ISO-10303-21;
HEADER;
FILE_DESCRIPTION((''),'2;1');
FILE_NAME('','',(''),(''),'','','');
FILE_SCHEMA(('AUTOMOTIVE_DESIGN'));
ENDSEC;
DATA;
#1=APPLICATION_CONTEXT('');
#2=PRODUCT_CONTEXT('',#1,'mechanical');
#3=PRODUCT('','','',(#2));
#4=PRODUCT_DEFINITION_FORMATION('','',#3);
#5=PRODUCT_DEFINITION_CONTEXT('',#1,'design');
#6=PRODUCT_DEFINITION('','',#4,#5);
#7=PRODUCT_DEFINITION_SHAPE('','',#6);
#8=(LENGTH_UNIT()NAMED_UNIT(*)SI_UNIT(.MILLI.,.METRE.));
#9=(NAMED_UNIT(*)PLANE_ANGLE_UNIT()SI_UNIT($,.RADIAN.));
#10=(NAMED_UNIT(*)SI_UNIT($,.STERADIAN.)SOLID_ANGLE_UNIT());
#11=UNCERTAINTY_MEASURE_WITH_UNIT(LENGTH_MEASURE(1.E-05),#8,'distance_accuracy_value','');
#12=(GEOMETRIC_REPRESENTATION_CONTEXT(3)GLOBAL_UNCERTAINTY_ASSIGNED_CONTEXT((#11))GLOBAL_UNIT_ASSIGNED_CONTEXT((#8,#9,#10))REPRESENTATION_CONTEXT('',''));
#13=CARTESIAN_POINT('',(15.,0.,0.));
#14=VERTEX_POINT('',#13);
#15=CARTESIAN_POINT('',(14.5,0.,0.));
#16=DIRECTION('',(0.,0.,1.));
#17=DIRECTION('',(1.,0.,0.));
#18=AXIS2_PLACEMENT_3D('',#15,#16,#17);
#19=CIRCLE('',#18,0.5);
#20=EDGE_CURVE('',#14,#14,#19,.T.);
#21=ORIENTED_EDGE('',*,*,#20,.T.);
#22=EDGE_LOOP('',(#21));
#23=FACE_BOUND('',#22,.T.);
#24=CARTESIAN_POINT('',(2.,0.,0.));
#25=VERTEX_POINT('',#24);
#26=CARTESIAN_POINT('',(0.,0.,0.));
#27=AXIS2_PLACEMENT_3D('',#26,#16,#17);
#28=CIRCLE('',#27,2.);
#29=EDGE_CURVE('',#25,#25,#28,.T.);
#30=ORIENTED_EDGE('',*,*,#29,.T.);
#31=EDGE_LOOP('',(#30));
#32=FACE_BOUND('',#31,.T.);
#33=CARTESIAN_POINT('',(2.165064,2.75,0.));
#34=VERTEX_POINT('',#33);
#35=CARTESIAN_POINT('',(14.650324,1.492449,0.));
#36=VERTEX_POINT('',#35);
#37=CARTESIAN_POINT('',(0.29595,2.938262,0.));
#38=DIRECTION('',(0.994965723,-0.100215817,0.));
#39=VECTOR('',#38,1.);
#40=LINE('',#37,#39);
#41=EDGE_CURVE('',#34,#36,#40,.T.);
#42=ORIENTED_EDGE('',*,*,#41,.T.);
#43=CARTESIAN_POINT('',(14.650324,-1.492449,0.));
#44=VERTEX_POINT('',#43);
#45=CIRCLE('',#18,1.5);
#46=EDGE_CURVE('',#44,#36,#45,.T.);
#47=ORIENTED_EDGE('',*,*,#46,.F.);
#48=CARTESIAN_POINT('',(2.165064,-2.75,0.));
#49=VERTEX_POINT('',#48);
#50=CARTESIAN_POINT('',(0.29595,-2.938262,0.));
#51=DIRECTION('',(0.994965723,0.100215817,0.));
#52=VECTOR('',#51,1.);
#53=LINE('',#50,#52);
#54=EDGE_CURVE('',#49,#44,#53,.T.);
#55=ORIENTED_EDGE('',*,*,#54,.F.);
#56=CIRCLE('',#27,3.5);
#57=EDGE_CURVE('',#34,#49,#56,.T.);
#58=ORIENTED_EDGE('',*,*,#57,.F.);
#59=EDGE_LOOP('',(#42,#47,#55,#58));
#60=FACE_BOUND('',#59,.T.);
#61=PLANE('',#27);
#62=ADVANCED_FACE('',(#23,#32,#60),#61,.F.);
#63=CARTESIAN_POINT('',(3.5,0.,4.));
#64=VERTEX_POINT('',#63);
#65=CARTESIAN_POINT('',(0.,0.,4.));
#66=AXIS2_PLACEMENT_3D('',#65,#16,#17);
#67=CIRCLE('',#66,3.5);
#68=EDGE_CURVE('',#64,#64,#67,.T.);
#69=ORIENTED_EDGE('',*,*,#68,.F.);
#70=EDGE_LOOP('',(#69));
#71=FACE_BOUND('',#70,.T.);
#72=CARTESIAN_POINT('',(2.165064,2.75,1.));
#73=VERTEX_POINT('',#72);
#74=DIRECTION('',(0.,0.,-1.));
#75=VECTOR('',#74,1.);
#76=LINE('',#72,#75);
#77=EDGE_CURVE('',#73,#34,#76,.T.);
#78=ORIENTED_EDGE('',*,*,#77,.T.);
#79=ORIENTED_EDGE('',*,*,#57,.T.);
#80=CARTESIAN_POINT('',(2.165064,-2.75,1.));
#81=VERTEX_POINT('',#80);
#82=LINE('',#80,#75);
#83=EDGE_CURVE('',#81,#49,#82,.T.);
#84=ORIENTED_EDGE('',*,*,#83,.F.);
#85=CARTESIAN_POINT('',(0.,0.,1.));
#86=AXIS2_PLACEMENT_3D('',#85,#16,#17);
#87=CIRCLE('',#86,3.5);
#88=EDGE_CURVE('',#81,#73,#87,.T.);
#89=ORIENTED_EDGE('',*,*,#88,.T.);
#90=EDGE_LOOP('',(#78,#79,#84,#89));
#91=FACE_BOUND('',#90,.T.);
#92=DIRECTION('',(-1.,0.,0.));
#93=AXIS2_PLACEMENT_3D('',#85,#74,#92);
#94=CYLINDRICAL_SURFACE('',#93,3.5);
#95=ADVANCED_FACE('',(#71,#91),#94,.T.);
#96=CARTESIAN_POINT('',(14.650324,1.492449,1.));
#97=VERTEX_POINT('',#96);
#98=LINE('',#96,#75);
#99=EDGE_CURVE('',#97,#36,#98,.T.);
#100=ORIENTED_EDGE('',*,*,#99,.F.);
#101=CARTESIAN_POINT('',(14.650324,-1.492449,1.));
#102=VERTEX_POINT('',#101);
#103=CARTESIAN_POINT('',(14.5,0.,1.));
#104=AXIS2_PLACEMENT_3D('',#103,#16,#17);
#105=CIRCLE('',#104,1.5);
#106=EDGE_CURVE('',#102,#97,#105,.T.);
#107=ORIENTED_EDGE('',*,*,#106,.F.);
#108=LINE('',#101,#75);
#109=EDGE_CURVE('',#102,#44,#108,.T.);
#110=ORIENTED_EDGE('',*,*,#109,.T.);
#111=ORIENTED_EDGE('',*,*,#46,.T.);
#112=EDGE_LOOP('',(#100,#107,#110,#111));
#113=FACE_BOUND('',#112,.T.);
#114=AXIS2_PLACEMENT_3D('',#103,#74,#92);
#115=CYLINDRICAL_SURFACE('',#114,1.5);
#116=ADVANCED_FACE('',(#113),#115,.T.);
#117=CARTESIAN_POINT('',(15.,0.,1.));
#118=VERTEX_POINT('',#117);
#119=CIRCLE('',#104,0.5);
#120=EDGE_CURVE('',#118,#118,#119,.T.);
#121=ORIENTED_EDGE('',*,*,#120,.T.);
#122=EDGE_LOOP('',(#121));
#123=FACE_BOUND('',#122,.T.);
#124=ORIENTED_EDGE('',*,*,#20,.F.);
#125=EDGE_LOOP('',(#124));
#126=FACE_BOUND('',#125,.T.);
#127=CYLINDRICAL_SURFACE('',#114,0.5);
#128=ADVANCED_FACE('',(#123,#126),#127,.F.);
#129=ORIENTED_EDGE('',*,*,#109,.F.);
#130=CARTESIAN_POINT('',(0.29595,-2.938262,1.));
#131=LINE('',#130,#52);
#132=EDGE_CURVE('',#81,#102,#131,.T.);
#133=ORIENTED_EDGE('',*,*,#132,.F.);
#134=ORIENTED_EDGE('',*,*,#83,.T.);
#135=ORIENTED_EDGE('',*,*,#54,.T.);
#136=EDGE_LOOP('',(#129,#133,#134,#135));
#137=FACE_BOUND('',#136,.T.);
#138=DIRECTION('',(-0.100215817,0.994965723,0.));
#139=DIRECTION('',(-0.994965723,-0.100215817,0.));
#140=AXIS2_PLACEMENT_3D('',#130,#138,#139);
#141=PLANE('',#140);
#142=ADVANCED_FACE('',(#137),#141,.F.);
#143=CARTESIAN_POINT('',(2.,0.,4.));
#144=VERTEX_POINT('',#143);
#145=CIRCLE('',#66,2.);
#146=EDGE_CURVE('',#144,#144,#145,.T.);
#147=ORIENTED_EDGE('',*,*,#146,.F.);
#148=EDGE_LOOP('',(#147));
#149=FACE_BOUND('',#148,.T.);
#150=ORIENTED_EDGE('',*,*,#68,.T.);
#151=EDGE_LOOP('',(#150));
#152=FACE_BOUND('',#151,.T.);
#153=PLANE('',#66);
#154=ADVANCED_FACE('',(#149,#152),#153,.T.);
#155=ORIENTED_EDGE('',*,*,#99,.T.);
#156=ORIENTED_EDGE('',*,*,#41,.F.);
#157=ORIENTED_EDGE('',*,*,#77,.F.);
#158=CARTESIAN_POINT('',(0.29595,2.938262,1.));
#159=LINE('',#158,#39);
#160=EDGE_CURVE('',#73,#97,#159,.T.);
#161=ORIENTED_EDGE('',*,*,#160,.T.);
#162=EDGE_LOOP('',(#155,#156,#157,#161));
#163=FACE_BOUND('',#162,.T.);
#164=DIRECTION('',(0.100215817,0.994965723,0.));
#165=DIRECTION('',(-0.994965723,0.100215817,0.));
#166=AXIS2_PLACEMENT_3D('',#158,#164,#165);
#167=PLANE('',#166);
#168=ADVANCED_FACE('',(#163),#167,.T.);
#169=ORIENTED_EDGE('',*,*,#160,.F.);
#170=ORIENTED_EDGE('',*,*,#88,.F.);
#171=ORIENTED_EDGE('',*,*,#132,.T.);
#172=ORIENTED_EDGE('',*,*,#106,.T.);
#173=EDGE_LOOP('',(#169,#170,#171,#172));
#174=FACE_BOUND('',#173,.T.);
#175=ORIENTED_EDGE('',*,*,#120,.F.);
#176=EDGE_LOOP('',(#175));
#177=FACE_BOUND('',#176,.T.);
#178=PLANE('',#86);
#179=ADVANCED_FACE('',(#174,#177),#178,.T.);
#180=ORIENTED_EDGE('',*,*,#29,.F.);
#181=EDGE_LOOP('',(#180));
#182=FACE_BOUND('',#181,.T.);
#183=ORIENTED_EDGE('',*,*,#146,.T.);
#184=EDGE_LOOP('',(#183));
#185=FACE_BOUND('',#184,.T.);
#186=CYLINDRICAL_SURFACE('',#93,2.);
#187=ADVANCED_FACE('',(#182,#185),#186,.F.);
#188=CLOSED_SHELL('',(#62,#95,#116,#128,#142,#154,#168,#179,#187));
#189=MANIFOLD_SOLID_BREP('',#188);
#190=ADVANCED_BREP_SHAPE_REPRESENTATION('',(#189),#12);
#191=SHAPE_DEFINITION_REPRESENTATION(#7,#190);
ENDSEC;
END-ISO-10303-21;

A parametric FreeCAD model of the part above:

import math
import FreeCAD as App
import Part
import Sketcher

V = App.Vector

doc = App.newDocument("Part")
body = doc.addObject("PartDesign::Body", "Body")

# Sketch on XY plane
sketch1 = body.newObject("Sketcher::SketchObject", "Sketch")
sketch1.AttachmentSupport = (doc.getObject("XY_Plane"), [""])
sketch1.MapMode = "FlatFace"
sketch1.addGeometry([
    Part.LineSegment(V(14.7, 1.5, 0), V(2.2, 2.8, 0)),  # 0
    Part.ArcOfCircle(Part.Circle(V(0, 0, 0), V(0, 0, 1), 3.5), math.radians(52), math.radians(308)),  # 1
    Part.LineSegment(V(2.2, -2.8, 0), V(14.7, -1.5, 0)),  # 2
    Part.ArcOfCircle(Part.Circle(V(14.5, 0, 0), V(0, 0, 1), 1.5), math.radians(-84), math.radians(84)),  # 3
    Part.Circle(V(0, 0, 0), V(0, 0, 1), 2),  # 4
    Part.Circle(V(14.5, 0, 0), V(0, 0, 1), 0.5),  # 5
], False)
sketch1.addConstraint([
    Sketcher.Constraint("Coincident", 0, 2, 1, 1),
    Sketcher.Constraint("Coincident", 1, 2, 2, 1),
    Sketcher.Constraint("Tangent", 2, 2, 3, 1),
    Sketcher.Constraint("Tangent", 3, 2, 0, 1),
    Sketcher.Constraint("Coincident", 1, 3, -1, 1),
    Sketcher.Constraint("Coincident", 4, 3, -1, 1),
    Sketcher.Constraint("Coincident", 5, 3, 3, 3),
    Sketcher.Constraint("Symmetric", 2, 2, 3, 2, -1),
    Sketcher.Constraint("Diameter", 4, 4.0),
    Sketcher.Constraint("Diameter", 5, 1.0),
    Sketcher.Constraint("Radius", 1, 3.5),
    Sketcher.Constraint("Radius", 3, 1.5),
    Sketcher.Constraint("DistanceX", -1, 1, 3, 3, 14.5),
    Sketcher.Constraint("DistanceY", 1, 2, 0, 2, 5.5),
])
pad1 = body.newObject("PartDesign::Pad", "Pad")
pad1.Profile = sketch1
pad1.Length = 1

# Sketch on XY plane
sketch2 = body.newObject("Sketcher::SketchObject", "Sketch001")
sketch2.AttachmentSupport = (doc.getObject("XY_Plane"), [""])
sketch2.MapMode = "FlatFace"
sketch2.AttachmentOffset = App.Placement(V(0, 0, 1), App.Rotation())
sketch2.addGeometry([
    Part.Circle(V(0, 0, 0), V(0, 0, 1), 3.5),
    Part.Circle(V(0, 0, 0), V(0, 0, 1), 2),
], False)
sketch2.addConstraint([
    Sketcher.Constraint("Coincident", 0, 3, -1, 1),
    Sketcher.Constraint("Coincident", 1, 3, -1, 1),
    Sketcher.Constraint("Diameter", 0, 7.0),
    Sketcher.Constraint("Diameter", 1, 4.0),
])
pad2 = body.newObject("PartDesign::Pad", "Pad001")
pad2.Profile = sketch2
pad2.Length = 3

doc.recompute()
